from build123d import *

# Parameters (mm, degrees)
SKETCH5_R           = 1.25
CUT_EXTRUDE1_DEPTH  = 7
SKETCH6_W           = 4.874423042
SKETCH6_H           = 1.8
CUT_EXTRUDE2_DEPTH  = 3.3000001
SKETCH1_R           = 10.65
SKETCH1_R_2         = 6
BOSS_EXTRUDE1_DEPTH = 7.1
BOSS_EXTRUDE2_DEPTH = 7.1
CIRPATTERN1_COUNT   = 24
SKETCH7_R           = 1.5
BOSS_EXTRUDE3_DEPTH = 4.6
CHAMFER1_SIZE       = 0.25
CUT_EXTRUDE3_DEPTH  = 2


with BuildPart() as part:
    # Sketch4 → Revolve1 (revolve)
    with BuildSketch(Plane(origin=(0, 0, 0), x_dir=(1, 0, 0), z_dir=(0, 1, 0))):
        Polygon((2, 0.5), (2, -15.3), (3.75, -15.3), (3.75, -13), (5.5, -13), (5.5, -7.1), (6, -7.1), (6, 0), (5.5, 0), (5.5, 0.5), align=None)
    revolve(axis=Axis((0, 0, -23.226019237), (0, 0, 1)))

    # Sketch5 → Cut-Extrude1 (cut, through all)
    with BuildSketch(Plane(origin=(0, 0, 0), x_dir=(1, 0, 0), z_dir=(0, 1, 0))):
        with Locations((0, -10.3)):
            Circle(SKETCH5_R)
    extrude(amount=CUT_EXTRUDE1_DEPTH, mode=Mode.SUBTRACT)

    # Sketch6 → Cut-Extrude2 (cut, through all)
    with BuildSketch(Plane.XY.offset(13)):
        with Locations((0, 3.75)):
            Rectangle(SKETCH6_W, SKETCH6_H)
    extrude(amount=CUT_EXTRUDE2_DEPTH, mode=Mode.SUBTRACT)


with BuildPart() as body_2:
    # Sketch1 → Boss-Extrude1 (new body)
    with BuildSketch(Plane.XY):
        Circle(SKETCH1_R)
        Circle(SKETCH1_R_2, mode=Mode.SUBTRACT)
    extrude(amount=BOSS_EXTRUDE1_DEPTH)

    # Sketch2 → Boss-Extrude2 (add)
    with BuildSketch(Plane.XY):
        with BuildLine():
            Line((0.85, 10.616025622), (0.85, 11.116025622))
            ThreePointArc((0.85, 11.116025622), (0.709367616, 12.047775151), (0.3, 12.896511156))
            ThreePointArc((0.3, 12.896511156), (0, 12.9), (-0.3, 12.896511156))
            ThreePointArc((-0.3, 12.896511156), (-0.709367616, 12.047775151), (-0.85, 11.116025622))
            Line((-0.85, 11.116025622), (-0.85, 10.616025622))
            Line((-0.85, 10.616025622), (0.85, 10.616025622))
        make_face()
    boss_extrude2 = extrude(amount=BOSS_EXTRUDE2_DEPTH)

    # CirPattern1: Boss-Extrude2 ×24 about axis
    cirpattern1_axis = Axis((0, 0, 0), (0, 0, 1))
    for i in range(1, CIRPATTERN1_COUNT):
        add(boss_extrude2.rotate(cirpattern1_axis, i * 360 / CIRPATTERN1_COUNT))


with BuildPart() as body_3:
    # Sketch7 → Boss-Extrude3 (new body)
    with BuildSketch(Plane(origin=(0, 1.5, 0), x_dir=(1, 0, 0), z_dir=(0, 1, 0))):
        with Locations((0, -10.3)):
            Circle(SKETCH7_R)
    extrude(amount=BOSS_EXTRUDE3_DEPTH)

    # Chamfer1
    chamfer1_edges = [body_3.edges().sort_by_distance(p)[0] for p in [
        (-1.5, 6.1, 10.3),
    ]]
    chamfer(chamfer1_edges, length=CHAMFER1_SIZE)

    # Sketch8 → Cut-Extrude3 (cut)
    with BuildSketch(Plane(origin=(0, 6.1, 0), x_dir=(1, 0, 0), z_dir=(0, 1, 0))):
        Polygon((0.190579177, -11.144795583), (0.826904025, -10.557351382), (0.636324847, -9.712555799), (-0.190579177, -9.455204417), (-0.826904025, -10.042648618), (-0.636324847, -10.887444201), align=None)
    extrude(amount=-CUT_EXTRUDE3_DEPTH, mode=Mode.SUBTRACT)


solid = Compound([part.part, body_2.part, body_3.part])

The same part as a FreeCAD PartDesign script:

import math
import FreeCAD as App
import Part
import Sketcher


def edges_at(feature, points):
    """Names of the edges that pass closest to the given points."""
    edges = feature.Shape.Edges
    near = lambda p: min(range(len(edges)), key=lambda i: edges[i].distToShape(Part.Vertex(*p))[0])
    return sorted({f"Edge{near(p) + 1}" for p in points})


def add_polygon(sketch, points):
    """Adds a closed chain of lines whose ends are joined by coincident constraints."""
    first, n = sketch.GeometryCount, len(points)
    for a, b in zip(points, points[1:] + points[:1]):
        sketch.addGeometry(Part.LineSegment(App.Vector(*a, 0), App.Vector(*b, 0)), False)
    for i in range(n):
        sketch.addConstraint(Sketcher.Constraint("Coincident", first + i, 2, first + (i + 1) % n, 1))

doc = App.newDocument("Part")
body = doc.addObject("PartDesign::Body", "Body")

# Sketch on XZ plane
sketch1 = doc.addObject("Sketcher::SketchObject", "Sketch")
body.addObject(sketch1)
sketch1.AttachmentSupport = (doc.XZ_Plane, [""])
sketch1.MapMode = "FlatFace"
add_polygon(sketch1, [(2, -0.5), (2, 15.3), (3.8, 15.3), (3.8, 13), (5.5, 13), (5.5, 7.1), (6, 7.1), (6, 0), (5.5, 0), (5.5, -0.5)])  # lines 0-9
sketch1.addConstraint(Sketcher.Constraint("Vertical", 0))
sketch1.addConstraint(Sketcher.Constraint("Horizontal", 1))
sketch1.addConstraint(Sketcher.Constraint("Vertical", 2))
sketch1.addConstraint(Sketcher.Constraint("Horizontal", 3))
sketch1.addConstraint(Sketcher.Constraint("Vertical", 4))
sketch1.addConstraint(Sketcher.Constraint("Horizontal", 5))
sketch1.addConstraint(Sketcher.Constraint("Vertical", 6))
sketch1.addConstraint(Sketcher.Constraint("Horizontal", 7))
sketch1.addConstraint(Sketcher.Constraint("Vertical", 8))
sketch1.addConstraint(Sketcher.Constraint("Horizontal", 9))
sketch1.addConstraint(Sketcher.Constraint("PointOnObject", 6, 2, -1))
sketch1.addConstraint(Sketcher.Constraint("Vertical", 4, 2, 7, 2))
sketch1.addConstraint(Sketcher.Constraint("Equal", 1, 3))
sketch1.addConstraint(Sketcher.Constraint("Equal", 7, 8))
sketch1.addConstraint(Sketcher.Constraint("DistanceX", 5, 1, 5, 2, 0.5))
sketch1.addConstraint(Sketcher.Constraint("DistanceX", 9, 2, 9, 1, 3.5))
sketch1.addConstraint(Sketcher.Constraint("DistanceY", 0, 1, 0, 2, 15.8))
sketch1.addConstraint(Sketcher.Constraint("DistanceY", 2, 2, 2, 1, 2.3))
sketch1.addConstraint(Sketcher.Constraint("DistanceY", 4, 2, 4, 1, 5.9))
sketch1.addConstraint(Sketcher.Constraint("DistanceX", -1, 1, 0, 2, 2.0))
revolution = doc.addObject("PartDesign::Revolution", "Revolution")
body.addObject(revolution)
revolution.Profile = sketch1
revolution.ReferenceAxis = (sketch1, ["V_Axis"])
revolution.Angle = 360

# Sketch on XZ plane
sketch2 = doc.addObject("Sketcher::SketchObject", "Sketch001")
body.addObject(sketch2)
sketch2.AttachmentSupport = (doc.XZ_Plane, [""])
sketch2.MapMode = "FlatFace"
sketch2.addGeometry(Part.Circle(App.Vector(0, 10.3, 0), App.Vector(0, 0, 1), 1.2), False)
sketch2.addConstraint(Sketcher.Constraint("PointOnObject", 0, 3, -2))
sketch2.addConstraint(Sketcher.Constraint("Diameter", 0, 2.5))
sketch2.addConstraint(Sketcher.Constraint("DistanceY", -1, 1, 0, 3, 10.3))
pocket1 = doc.addObject("PartDesign::Pocket", "Pocket")
body.addObject(pocket1)
pocket1.Profile = sketch2
pocket1.Type = "ThroughAll"

# Sketch on XY plane
sketch3 = doc.addObject("Sketcher::SketchObject", "Sketch002")
body.addObject(sketch3)
sketch3.AttachmentSupport = (doc.XY_Plane, [""])
sketch3.MapMode = "FlatFace"
sketch3.AttachmentOffset = App.Placement(App.Vector(0, 0, 13), App.Rotation())
add_polygon(sketch3, [(-2.4, 4.7), (-2.4, 2.9), (2.4, 2.9), (2.4, 4.7)])  # lines 0-3
sketch3.addConstraint(Sketcher.Constraint("Vertical", 0))
sketch3.addConstraint(Sketcher.Constraint("Horizontal", 1))
sketch3.addConstraint(Sketcher.Constraint("Vertical", 2))
sketch3.addConstraint(Sketcher.Constraint("Horizontal", 3))
sketch3.addConstraint(Sketcher.Constraint("DistanceY", 0, 2, 0, 1, 1.8))
sketch3.addConstraint(Sketcher.Constraint("DistanceY", -1, 1, 0, 2, 2.85))
sketch3.addConstraint(Sketcher.Constraint("DistanceX", 1, 1, 1, 2, 4.874423))
sketch3.addConstraint(Sketcher.Constraint("DistanceX", 0, 2, -1, 1, 2.437212))
pocket2 = doc.addObject("PartDesign::Pocket", "Pocket001")
body.addObject(pocket2)
pocket2.Profile = sketch3
pocket2.Type = "ThroughAll"
pocket2.Reversed = True
body2 = doc.addObject("PartDesign::Body", "Body001")

# Sketch on XY plane
sketch4 = doc.addObject("Sketcher::SketchObject", "Sketch003")
body2.addObject(sketch4)
sketch4.AttachmentSupport = (doc.getObject("XY_Plane001"), [""])
sketch4.MapMode = "FlatFace"
sketch4.addGeometry(Part.Circle(App.Vector(0, 0, 0), App.Vector(0, 0, 1), 11), False)
sketch4.addGeometry(Part.Circle(App.Vector(0, 0, 0), App.Vector(0, 0, 1), 6), False)
sketch4.addConstraint(Sketcher.Constraint("Coincident", 0, 3, -1, 1))
sketch4.addConstraint(Sketcher.Constraint("Coincident", 1, 3, -1, 1))
sketch4.addConstraint(Sketcher.Constraint("Diameter", 1, 12.0))
sketch4.addConstraint(Sketcher.Constraint("Diameter", 0, 21.3))
pad1 = doc.addObject("PartDesign::Pad", "Pad")
body2.addObject(pad1)
pad1.Profile = sketch4
pad1.Length = 7.1

# Sketch on XY plane
sketch5 = doc.addObject("Sketcher::SketchObject", "Sketch004")
body2.addObject(sketch5)
sketch5.AttachmentSupport = (doc.getObject("XY_Plane001"), [""])
sketch5.MapMode = "FlatFace"
sketch5.addGeometry(Part.LineSegment(App.Vector(0.8, 10.6, 0), App.Vector(0.8, 11.1, 0)), False)
sketch5.addGeometry(Part.ArcOfCircle(Part.Circle(App.Vector(-2.3, 11.1, 0), App.Vector(0, 0, 1), 3.2), math.radians(0), math.radians(34)), False)
sketch5.addGeometry(Part.ArcOfCircle(Part.Circle(App.Vector(0, 0, 0), App.Vector(0, 0, 1), 12.9), math.radians(88.67), math.radians(91.33)), False)
sketch5.addGeometry(Part.ArcOfCircle(Part.Circle(App.Vector(2.3, 11.1, 0), App.Vector(0, 0, 1), 3.2), math.radians(146), math.radians(180)), False)
sketch5.addGeometry(Part.LineSegment(App.Vector(-0.8, 11.1, 0), App.Vector(-0.8, 10.6, 0)), False)
sketch5.addGeometry(Part.LineSegment(App.Vector(-0.8, 10.6, 0), App.Vector(0.8, 10.6, 0)), False)
sketch5.addConstraint(Sketcher.Constraint("Tangent", 0, 2, 1, 1))
sketch5.addConstraint(Sketcher.Constraint("Coincident", 1, 2, 2, 1))
sketch5.addConstraint(Sketcher.Constraint("Coincident", 2, 2, 3, 1))
sketch5.addConstraint(Sketcher.Constraint("Tangent", 3, 2, 4, 1))
sketch5.addConstraint(Sketcher.Constraint("Coincident", 4, 2, 5, 1))
sketch5.addConstraint(Sketcher.Constraint("Coincident", 5, 2, 0, 1))
sketch5.addConstraint(Sketcher.Constraint("Vertical", 0))
sketch5.addConstraint(Sketcher.Constraint("Vertical", 4))
sketch5.addConstraint(Sketcher.Constraint("Horizontal", 5))
sketch5.addConstraint(Sketcher.Constraint("Coincident", 2, 3, -1, 1))
sketch5.addConstraint(Sketcher.Constraint("Equal", 1, 3))
sketch5.addConstraint(Sketcher.Constraint("Symmetric", 1, 3, 3, 3, -2))
sketch5.addConstraint(Sketcher.Constraint("Radius", 2, 12.9))
sketch5.addConstraint(Sketcher.Constraint("DistanceX", 5, 1, 5, 2, 1.7))
sketch5.addConstraint(Sketcher.Constraint("DistanceY", 0, 1, 0, 2, 0.5))
sketch5.addConstraint(Sketcher.Constraint("DistanceX", -1, 1, 1, 2, 0.3))
sketch5.addConstraint(Sketcher.Constraint("Radius", 1, 3.156935))
pad2 = doc.addObject("PartDesign::Pad", "Pad001")
body2.addObject(pad2)
pad2.Profile = sketch5
pad2.Length = 7.1
doc.recompute()

polarpattern = doc.addObject("PartDesign::PolarPattern", "PolarPattern")
body2.addObject(polarpattern)
polarpattern.Originals = [pad2]
polarpattern.Axis = (doc.getObject("Z_Axis001"), [""])
polarpattern.Angle = 360
polarpattern.Occurrences = 24
body2.Tip = polarpattern
body3 = doc.addObject("PartDesign::Body", "Body002")

# Sketch on XZ plane
sketch6 = doc.addObject("Sketcher::SketchObject", "Sketch005")
body3.addObject(sketch6)
sketch6.AttachmentSupport = (doc.getObject("XZ_Plane002"), [""])
sketch6.MapMode = "FlatFace"
sketch6.AttachmentOffset = App.Placement(App.Vector(0, 0, -1.5), App.Rotation())
sketch6.addGeometry(Part.Circle(App.Vector(0, 10.3, 0), App.Vector(0, 0, 1), 1.5), False)
sketch6.addConstraint(Sketcher.Constraint("PointOnObject", 0, 3, -2))
sketch6.addConstraint(Sketcher.Constraint("Diameter", 0, 3.0))
sketch6.addConstraint(Sketcher.Constraint("DistanceY", -1, 1, 0, 3, 10.3))
pad3 = doc.addObject("PartDesign::Pad", "Pad002")
body3.addObject(pad3)
pad3.Profile = sketch6
pad3.Length = 4.6
pad3.Reversed = True
doc.recompute()

chamfer = doc.addObject("PartDesign::Chamfer", "Chamfer")
body3.addObject(chamfer)
chamfer.Base = (pad3, edges_at(pad3, [(-1.5, 6.1, 10.3)]))
chamfer.Size = 0.25

# Sketch on XZ plane
sketch7 = doc.addObject("Sketcher::SketchObject", "Sketch006")
body3.addObject(sketch7)
sketch7.AttachmentSupport = (doc.getObject("XZ_Plane002"), [""])
sketch7.MapMode = "FlatFace"
sketch7.AttachmentOffset = App.Placement(App.Vector(0, 0, -6.1), App.Rotation())
add_polygon(sketch7, [(0.2, 11.1), (0.8, 10.6), (0.6, 9.7), (-0.2, 9.5), (-0.8, 10), (-0.6, 10.9)])  # lines 0-5
sketch7.addConstraint(Sketcher.Constraint("Parallel", 0, 3))
sketch7.addConstraint(Sketcher.Constraint("Parallel", 1, 4))
sketch7.addConstraint(Sketcher.Constraint("Parallel", 2, 5))
sketch7.addConstraint(Sketcher.Constraint("Equal", 0, 1))
sketch7.addConstraint(Sketcher.Constraint("Equal", 1, 2))
sketch7.addConstraint(Sketcher.Constraint("Equal", 2, 3))
sketch7.addConstraint(Sketcher.Constraint("DistanceY", -1, 1, 0, 2, 10.557351))
sketch7.addConstraint(Sketcher.Constraint("DistanceX", 2, 2, -1, 1, 0.190579))
sketch7.addConstraint(Sketcher.Constraint("DistanceY", -1, 1, 3, 2, 10.042649))
sketch7.addConstraint(Sketcher.Constraint("DistanceX", -1, 1, 5, 2, 0.190579))
sketch7.addConstraint(Sketcher.Constraint("DistanceX", 1, 2, 0, 2, 0.190579))
sketch7.addConstraint(Sketcher.Constraint("DistanceY", 2, 2, 1, 2, 0.257351))
pocket3 = doc.addObject("PartDesign::Pocket", "Pocket002")
body3.addObject(pocket3)
pocket3.Profile = sketch7
pocket3.Length = 2
pocket3.Reversed = True

doc.recompute()
